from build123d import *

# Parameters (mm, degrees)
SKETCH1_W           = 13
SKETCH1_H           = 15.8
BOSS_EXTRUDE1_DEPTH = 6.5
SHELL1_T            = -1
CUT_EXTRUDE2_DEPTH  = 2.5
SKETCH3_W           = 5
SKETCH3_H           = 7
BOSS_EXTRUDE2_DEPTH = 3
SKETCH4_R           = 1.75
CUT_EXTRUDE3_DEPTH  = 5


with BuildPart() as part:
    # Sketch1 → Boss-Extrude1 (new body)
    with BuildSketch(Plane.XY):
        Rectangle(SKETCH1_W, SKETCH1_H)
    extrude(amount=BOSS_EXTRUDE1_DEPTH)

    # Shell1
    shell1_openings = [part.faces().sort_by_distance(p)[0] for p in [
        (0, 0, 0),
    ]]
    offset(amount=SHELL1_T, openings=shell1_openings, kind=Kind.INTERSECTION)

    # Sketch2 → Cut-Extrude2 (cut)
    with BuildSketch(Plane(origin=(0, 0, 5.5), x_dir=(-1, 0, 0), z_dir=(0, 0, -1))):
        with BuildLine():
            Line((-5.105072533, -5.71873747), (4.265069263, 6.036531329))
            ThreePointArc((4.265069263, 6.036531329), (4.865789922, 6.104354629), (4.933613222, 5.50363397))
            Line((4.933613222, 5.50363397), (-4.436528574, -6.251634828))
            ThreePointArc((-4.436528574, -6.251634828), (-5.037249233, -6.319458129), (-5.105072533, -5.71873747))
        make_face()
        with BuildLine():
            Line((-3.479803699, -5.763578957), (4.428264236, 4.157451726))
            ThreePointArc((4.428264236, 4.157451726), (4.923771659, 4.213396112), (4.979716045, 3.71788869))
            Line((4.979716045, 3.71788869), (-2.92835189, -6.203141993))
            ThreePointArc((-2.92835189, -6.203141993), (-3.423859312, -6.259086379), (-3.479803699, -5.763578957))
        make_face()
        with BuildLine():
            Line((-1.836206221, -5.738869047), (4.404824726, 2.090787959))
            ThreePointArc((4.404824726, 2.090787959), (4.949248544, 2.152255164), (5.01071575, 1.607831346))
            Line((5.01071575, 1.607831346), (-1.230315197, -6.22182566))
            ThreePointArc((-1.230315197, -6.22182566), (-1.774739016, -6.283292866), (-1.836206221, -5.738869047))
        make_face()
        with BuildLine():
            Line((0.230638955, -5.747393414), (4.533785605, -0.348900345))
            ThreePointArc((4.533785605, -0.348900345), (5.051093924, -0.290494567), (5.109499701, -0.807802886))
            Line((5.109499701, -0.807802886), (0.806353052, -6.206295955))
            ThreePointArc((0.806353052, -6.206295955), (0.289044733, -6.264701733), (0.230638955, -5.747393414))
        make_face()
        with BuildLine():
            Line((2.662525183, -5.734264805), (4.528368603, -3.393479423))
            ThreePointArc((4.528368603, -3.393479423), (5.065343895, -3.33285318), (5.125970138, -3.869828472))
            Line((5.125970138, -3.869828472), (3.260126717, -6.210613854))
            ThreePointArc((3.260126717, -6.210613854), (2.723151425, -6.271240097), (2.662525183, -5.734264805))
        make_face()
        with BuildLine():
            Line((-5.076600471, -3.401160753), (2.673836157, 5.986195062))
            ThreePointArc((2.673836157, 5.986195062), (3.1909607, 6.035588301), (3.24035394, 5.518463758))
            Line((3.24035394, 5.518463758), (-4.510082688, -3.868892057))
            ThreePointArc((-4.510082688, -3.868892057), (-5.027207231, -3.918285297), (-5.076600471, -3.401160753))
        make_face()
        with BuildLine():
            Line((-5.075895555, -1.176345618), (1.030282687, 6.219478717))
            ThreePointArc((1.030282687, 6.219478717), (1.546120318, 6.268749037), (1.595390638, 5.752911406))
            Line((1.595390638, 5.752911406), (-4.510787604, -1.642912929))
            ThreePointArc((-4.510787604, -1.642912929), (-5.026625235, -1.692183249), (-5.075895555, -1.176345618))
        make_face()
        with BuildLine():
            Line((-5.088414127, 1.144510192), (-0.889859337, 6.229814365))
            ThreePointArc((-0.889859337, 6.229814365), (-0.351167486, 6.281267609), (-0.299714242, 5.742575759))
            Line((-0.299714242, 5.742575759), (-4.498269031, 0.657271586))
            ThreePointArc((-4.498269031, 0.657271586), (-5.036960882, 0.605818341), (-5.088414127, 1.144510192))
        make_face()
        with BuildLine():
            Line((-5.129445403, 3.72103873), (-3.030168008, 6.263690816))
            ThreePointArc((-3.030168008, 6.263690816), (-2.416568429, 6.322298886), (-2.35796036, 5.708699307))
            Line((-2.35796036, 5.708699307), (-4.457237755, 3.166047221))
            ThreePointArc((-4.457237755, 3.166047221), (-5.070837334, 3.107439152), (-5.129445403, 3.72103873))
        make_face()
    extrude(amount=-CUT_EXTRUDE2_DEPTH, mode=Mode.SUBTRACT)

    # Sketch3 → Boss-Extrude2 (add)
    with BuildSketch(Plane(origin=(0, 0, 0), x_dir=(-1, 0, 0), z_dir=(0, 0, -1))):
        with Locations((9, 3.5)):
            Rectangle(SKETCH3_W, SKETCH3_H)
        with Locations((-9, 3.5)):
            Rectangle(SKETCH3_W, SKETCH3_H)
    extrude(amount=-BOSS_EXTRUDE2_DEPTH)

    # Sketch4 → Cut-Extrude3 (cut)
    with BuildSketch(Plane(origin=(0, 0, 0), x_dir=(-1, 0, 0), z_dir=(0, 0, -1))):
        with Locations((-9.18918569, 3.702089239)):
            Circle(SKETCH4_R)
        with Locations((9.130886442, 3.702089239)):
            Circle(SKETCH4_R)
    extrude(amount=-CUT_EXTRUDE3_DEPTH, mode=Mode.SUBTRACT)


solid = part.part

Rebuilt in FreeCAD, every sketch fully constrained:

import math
import FreeCAD as App
import Part
import Sketcher
Q = App.Units.Quantity


def faces_at(feature, points):
    """Names of the faces that lie closest to the given points."""
    faces = feature.Shape.Faces
    near = lambda p: min(range(len(faces)), key=lambda i: faces[i].distToShape(Part.Vertex(*p))[0])
    return sorted({f"Face{near(p) + 1}" for p in points})

doc = App.newDocument("Part")
body = doc.addObject("PartDesign::Body", "Body")

sketch1 = doc.addObject("Sketcher::SketchObject", "Sketch")
body.addObject(sketch1)
sketch1.AttachmentSupport = (doc.XY_Plane, [""])
sketch1.MapMode = "FlatFace"
sketch1.addGeometry([
    Part.LineSegment(App.Vector(-6, 8, 0), App.Vector(-6, -8, 0)),
    Part.LineSegment(App.Vector(-6, -8, 0), App.Vector(6, -8, 0)),
    Part.LineSegment(App.Vector(6, -8, 0), App.Vector(6, 8, 0)),
    Part.LineSegment(App.Vector(6, 8, 0), App.Vector(-6, 8, 0)),
], False)
sketch1.addConstraint([
    Sketcher.Constraint("Coincident", 0, 2, 1, 1),
    Sketcher.Constraint("Coincident", 1, 2, 2, 1),
    Sketcher.Constraint("Coincident", 2, 2, 3, 1),
    Sketcher.Constraint("Coincident", 3, 2, 0, 1),
    Sketcher.Constraint("Vertical", 0),
    Sketcher.Constraint("Horizontal", 1),
    Sketcher.Constraint("Vertical", 2),
    Sketcher.Constraint("Horizontal", 3),
    Sketcher.Constraint("Symmetric", 0, 2, 2, 2, -1, 1),
    Sketcher.Constraint("DistanceX", 1, 1, 1, 2, Q("13 mm")),
    Sketcher.Constraint("DistanceY", 0, 2, 0, 1, Q("15.8 mm")),
])
pad1 = doc.addObject("PartDesign::Pad", "Pad")
body.addObject(pad1)
pad1.Profile = sketch1
pad1.Length = 6.5
doc.recompute()

thickness = doc.addObject("PartDesign::Thickness", "Thickness")
body.addObject(thickness)
thickness.Base = (pad1, faces_at(pad1, [(0, 0, 0)]))
thickness.Value = 1
thickness.Reversed = True
thickness.Join = "Intersection"

sketch2 = doc.addObject("Sketcher::SketchObject", "Sketch001")
body.addObject(sketch2)
sketch2.AttachmentSupport = (doc.XY_Plane, [""])
sketch2.MapMode = "FlatFace"
sketch2.AttachmentOffset = App.Placement(App.Vector(0, 0, 5.5), App.Rotation())
sketch2.addGeometry([
    Part.LineSegment(App.Vector(-4.265069, 6.036531, 0), App.Vector(5.105073, -5.718737, 0)),
    Part.ArcOfCircle(Part.Circle(App.Vector(4.770801, -5.985186, 0), App.Vector(0, 0, 1), 0.427472), math.radians(-141.4416), math.radians(38.5584)),
    Part.LineSegment(App.Vector(4.436529, -6.251635, 0), App.Vector(-4.933613, 5.503634, 0)),
    Part.ArcOfCircle(Part.Circle(App.Vector(-4.599341, 5.770083, 0), App.Vector(0, 0, 1), 0.427472), math.radians(38.5584), math.radians(218.5584)),
    Part.LineSegment(App.Vector(-4.428264, 4.157452, 0), App.Vector(3.479804, -5.763579, 0)),
    Part.ArcOfCircle(Part.Circle(App.Vector(3.204078, -5.98336, 0), App.Vector(0, 0, 1), 0.352603), math.radians(-141.4416), math.radians(38.5584)),
    Part.LineSegment(App.Vector(2.928352, -6.203142, 0), App.Vector(-4.979716, 3.717889, 0)),
    Part.ArcOfCircle(Part.Circle(App.Vector(-4.70399, 3.93767, 0), App.Vector(0, 0, 1), 0.352603), math.radians(38.5584), math.radians(218.5584)),
    Part.LineSegment(App.Vector(-4.404825, 2.090788, 0), App.Vector(1.836206, -5.738869, 0)),
    Part.ArcOfCircle(Part.Circle(App.Vector(1.533261, -5.980347, 0), App.Vector(0, 0, 1), 0.387412), math.radians(-141.4416), math.radians(38.5584)),
    Part.LineSegment(App.Vector(1.230315, -6.221826, 0), App.Vector(-5.010716, 1.607831, 0)),
    Part.ArcOfCircle(Part.Circle(App.Vector(-4.70777, 1.84931, 0), App.Vector(0, 0, 1), 0.387412), math.radians(38.5584), math.radians(218.5584)),
    Part.LineSegment(App.Vector(-4.533786, -0.3489, 0), App.Vector(-0.230639, -5.747393, 0)),
    Part.ArcOfCircle(Part.Circle(App.Vector(-0.518496, -5.976845, 0), App.Vector(0, 0, 1), 0.368116), math.radians(-141.4416), math.radians(38.5584)),
    Part.LineSegment(App.Vector(-0.806353, -6.206296, 0), App.Vector(-5.1095, -0.807803, 0)),
    Part.ArcOfCircle(Part.Circle(App.Vector(-4.821643, -0.578352, 0), App.Vector(0, 0, 1), 0.368116), math.radians(38.5584), math.radians(218.5584)),
    Part.LineSegment(App.Vector(-4.528369, -3.393479, 0), App.Vector(-2.662525, -5.734265, 0)),
    Part.ArcOfCircle(Part.Circle(App.Vector(-2.961326, -5.972439, 0), App.Vector(0, 0, 1), 0.382111), math.radians(-141.4416), math.radians(38.5584)),
    Part.LineSegment(App.Vector(-3.260127, -6.210614, 0), App.Vector(-5.12597, -3.869828, 0)),
    Part.ArcOfCircle(Part.Circle(App.Vector(-4.827169, -3.631654, 0), App.Vector(0, 0, 1), 0.382111), math.radians(38.5584), math.radians(218.5584)),
    Part.LineSegment(App.Vector(-2.673836, 5.986195, 0), App.Vector(5.0766, -3.401161, 0)),
    Part.ArcOfCircle(Part.Circle(App.Vector(4.793342, -3.635026, 0), App.Vector(0, 0, 1), 0.367326), math.radians(-140.456064), math.radians(39.543936)),
    Part.LineSegment(App.Vector(4.510083, -3.868892, 0), App.Vector(-3.240354, 5.518464, 0)),
    Part.ArcOfCircle(Part.Circle(App.Vector(-2.957095, 5.752329, 0), App.Vector(0, 0, 1), 0.367326), math.radians(39.543936), math.radians(219.543936)),
    Part.LineSegment(App.Vector(-1.030283, 6.219479, 0), App.Vector(5.075896, -1.176346, 0)),
    Part.ArcOfCircle(Part.Circle(App.Vector(4.793342, -1.409629, 0), App.Vector(0, 0, 1), 0.366412), math.radians(-140.456064), math.radians(39.543936)),
    Part.LineSegment(App.Vector(4.510788, -1.642913, 0), App.Vector(-1.595391, 5.752911, 0)),
    Part.ArcOfCircle(Part.Circle(App.Vector(-1.312837, 5.986195, 0), App.Vector(0, 0, 1), 0.366412), math.radians(39.543936), math.radians(219.543936)),
    Part.LineSegment(App.Vector(0.889859, 6.229814, 0), App.Vector(5.088414, 1.14451, 0)),
    Part.ArcOfCircle(Part.Circle(App.Vector(4.793342, 0.900891, 0), App.Vector(0, 0, 1), 0.382646), math.radians(-140.456064), math.radians(39.543936)),
    Part.LineSegment(App.Vector(4.498269, 0.657272, 0), App.Vector(0.299714, 5.742576, 0)),
    Part.ArcOfCircle(Part.Circle(App.Vector(0.594787, 5.986195, 0), App.Vector(0, 0, 1), 0.382646), math.radians(39.543936), math.radians(219.543936)),
    Part.LineSegment(App.Vector(3.030168, 6.263691, 0), App.Vector(5.129445, 3.721039, 0)),
    Part.ArcOfCircle(Part.Circle(App.Vector(4.793342, 3.443543, 0), App.Vector(0, 0, 1), 0.435855), math.radians(-140.456064), math.radians(39.543936)),
    Part.LineSegment(App.Vector(4.457238, 3.166047, 0), App.Vector(2.35796, 5.708699, 0)),
    Part.ArcOfCircle(Part.Circle(App.Vector(2.694064, 5.986195, 0), App.Vector(0, 0, 1), 0.435855), math.radians(39.543936), math.radians(219.543936)),
], False)
sketch2.addConstraint([
    Sketcher.Constraint("Coincident", 0, 2, 1, 2),
    Sketcher.Constraint("Coincident", 1, 1, 2, 1),
    Sketcher.Constraint("Coincident", 2, 2, 3, 2),
    Sketcher.Constraint("Coincident", 3, 1, 0, 1),
    Sketcher.Constraint("Coincident", 4, 2, 5, 2),
    Sketcher.Constraint("Coincident", 5, 1, 6, 1),
    Sketcher.Constraint("Coincident", 6, 2, 7, 2),
    Sketcher.Constraint("Coincident", 7, 1, 4, 1),
    Sketcher.Constraint("Coincident", 8, 2, 9, 2),
    Sketcher.Constraint("Coincident", 9, 1, 10, 1),
    Sketcher.Constraint("Coincident", 10, 2, 11, 2),
    Sketcher.Constraint("Coincident", 11, 1, 8, 1),
    Sketcher.Constraint("Coincident", 12, 2, 13, 2),
    Sketcher.Constraint("Coincident", 13, 1, 14, 1),
    Sketcher.Constraint("Coincident", 14, 2, 15, 2),
    Sketcher.Constraint("Coincident", 15, 1, 12, 1),
    Sketcher.Constraint("Coincident", 16, 2, 17, 2),
    Sketcher.Constraint("Coincident", 17, 1, 18, 1),
    Sketcher.Constraint("Coincident", 18, 2, 19, 2),
    Sketcher.Constraint("Coincident", 19, 1, 16, 1),
    Sketcher.Constraint("Coincident", 20, 2, 21, 2),
    Sketcher.Constraint("Coincident", 21, 1, 22, 1),
    Sketcher.Constraint("Coincident", 22, 2, 23, 2),
    Sketcher.Constraint("Coincident", 23, 1, 20, 1),
    Sketcher.Constraint("Coincident", 24, 2, 25, 2),
    Sketcher.Constraint("Coincident", 25, 1, 26, 1),
    Sketcher.Constraint("Coincident", 26, 2, 27, 2),
    Sketcher.Constraint("Coincident", 27, 1, 24, 1),
    Sketcher.Constraint("Coincident", 28, 2, 29, 2),
    Sketcher.Constraint("Coincident", 29, 1, 30, 1),
    Sketcher.Constraint("Coincident", 30, 2, 31, 2),
    Sketcher.Constraint("Coincident", 31, 1, 28, 1),
    Sketcher.Constraint("Coincident", 32, 2, 33, 2),
    Sketcher.Constraint("Coincident", 33, 1, 34, 1),
    Sketcher.Constraint("Coincident", 34, 2, 35, 2),
    Sketcher.Constraint("Coincident", 35, 1, 32, 1),
    Sketcher.Constraint("Radius", 9, Q("0.387412 mm")),
    Sketcher.Constraint("Radius", 11, Q("0.387412 mm")),
    Sketcher.Constraint("Radius", 17, Q("0.382111 mm")),
    Sketcher.Constraint("Radius", 19, Q("0.382111 mm")),
    Sketcher.Constraint("Radius", 1, Q("0.427472 mm")),
    Sketcher.Constraint("Radius", 3, Q("0.427472 mm")),
    Sketcher.Constraint("Radius", 5, Q("0.352603 mm")),
    Sketcher.Constraint("Radius", 7, Q("0.352603 mm")),
    Sketcher.Constraint("Radius", 13, Q("0.368116 mm")),
    Sketcher.Constraint("Radius", 15, Q("0.368116 mm")),
    Sketcher.Constraint("Radius", 21, Q("0.367326 mm")),
    Sketcher.Constraint("Radius", 23, Q("0.367326 mm")),
    Sketcher.Constraint("Radius", 25, Q("0.366412 mm")),
    Sketcher.Constraint("Radius", 27, Q("0.366412 mm")),
    Sketcher.Constraint("Radius", 29, Q("0.382646 mm")),
    Sketcher.Constraint("Radius", 31, Q("0.382646 mm")),
    Sketcher.Constraint("Radius", 33, Q("0.435855 mm")),
    Sketcher.Constraint("Radius", 35, Q("0.435855 mm")),
    Sketcher.Constraint("DistanceX", 10, 2, 6, 2, Q("0.031 mm")),
    Sketcher.Constraint("DistanceX", 23, 1, 27, 3, Q("1.360999 mm")),
    Sketcher.Constraint("DistanceX", -1, 1, 1, 3, Q("4.770801 mm")),
    Sketcher.Constraint("DistanceX", 14, 2, -1, 1, Q("5.1095 mm")),
    Sketcher.Constraint("DistanceY", 15, 1, -1, 1, Q("0.3489 mm")),
    Sketcher.Constraint("DistanceX", -1, 1, 20, 2, Q("5.0766 mm")),
    Sketcher.Constraint("DistanceY", -1, 1, 34, 2, Q("5.708699 mm")),
    Sketcher.Constraint("DistanceX", 3, 3, 9, 3, Q("6.132602 mm")),
    Sketcher.Constraint("DistanceX", 15, 3, 3, 3, Q("0.222301 mm")),
    Sketcher.Constraint("DistanceX", 19, 3, 11, 3, Q("0.119399 mm")),
    Sketcher.Constraint("DistanceX", 27, 3, 35, 3, Q("4.006901 mm")),
    Sketcher.Constraint("DistanceY", 23, 3, 3, 1, Q("0.284202 mm")),
    Sketcher.Constraint("DistanceY", 11, 1, 6, 2, Q("1.627101 mm")),
    Sketcher.Constraint("DistanceX", 12, 2, 9, 3, Q("1.7639 mm")),
    Sketcher.Constraint("DistanceX", 17, 3, 16, 2, Q("0.298801 mm")),
    Sketcher.Constraint("DistanceX", 17, 1, 17, 3, Q("0.298801 mm")),
    Sketcher.Constraint("DistanceX", 18, 2, 19, 3, Q("0.298801 mm")),
    Sketcher.Constraint("DistanceX", 19, 3, 19, 1, Q("0.298801 mm")),
    Sketcher.Constraint("DistanceY", 25, 3, 29, 1, Q("2.066901 mm")),
    Sketcher.Constraint("DistanceX", 31, 1, 34, 2, Q("1.468101 mm")),
    Sketcher.Constraint("Distance", 8, Q("10.012692 mm")),
    Sketcher.Constraint("Distance", 10, Q("10.012692 mm")),
    Sketcher.Constraint("Distance", 12, Q("6.90368 mm")),
    Sketcher.Constraint("Distance", 14, Q("6.90368 mm")),
    Sketcher.Constraint("Distance", 24, Q("9.59081 mm")),
    Sketcher.Constraint("Distance", 26, Q("9.59081 mm")),
    Sketcher.Constraint("Distance", 32, Q("3.297278 mm")),
    Sketcher.Constraint("Distance", 34, Q("3.297278 mm")),
    Sketcher.Constraint("DistanceX", 3, 3, -1, 1, Q("4.599341 mm")),
    Sketcher.Constraint("DistanceY", 5, 3, -1, 1, Q("5.98336 mm")),
    Sketcher.Constraint("DistanceX", 7, 3, -1, 1, Q("4.70399 mm")),
    Sketcher.Constraint("DistanceY", -1, 1, 7, 3, Q("3.93767 mm")),
    Sketcher.Constraint("DistanceX", 11, 3, -1, 1, Q("4.70777 mm")),
    Sketcher.Constraint("DistanceY", -1, 1, 11, 3, Q("1.84931 mm")),
    Sketcher.Constraint("DistanceY", 15, 3, -1, 1, Q("0.578352 mm")),
    Sketcher.Constraint("DistanceY", 17, 3, -1, 1, Q("5.972439 mm")),
    Sketcher.Constraint("DistanceX", -1, 1, 21, 3, Q("4.793342 mm")),
    Sketcher.Constraint("DistanceY", -1, 1, 23, 3, Q("5.752329 mm")),
    Sketcher.Constraint("DistanceX", -1, 1, 25, 3, Q("4.793342 mm")),
    Sketcher.Constraint("DistanceY", 25, 3, -1, 1, Q("1.409629 mm")),
    Sketcher.Constraint("DistanceX", -1, 1, 29, 3, Q("4.793342 mm")),
    Sketcher.Constraint("DistanceY", -1, 1, 29, 3, Q("0.900891 mm")),
    Sketcher.Constraint("DistanceX", -1, 1, 33, 3, Q("4.793342 mm")),
    Sketcher.Constraint("DistanceX", -1, 1, 1, 1, Q("4.436529 mm")),
    Sketcher.Constraint("DistanceX", 3, 1, -1, 1, Q("4.265069 mm")),
    Sketcher.Constraint("DistanceY", 4, 2, -1, 1, Q("5.763579 mm")),
    Sketcher.Constraint("DistanceX", -1, 1, 5, 1, Q("2.928352 mm")),
    Sketcher.Constraint("DistanceY", 5, 1, -1, 1, Q("6.203142 mm")),
    Sketcher.Constraint("DistanceY", -1, 1, 6, 2, Q("3.717889 mm")),
    Sketcher.Constraint("DistanceY", -1, 1, 7, 1, Q("4.157452 mm")),
    Sketcher.Constraint("DistanceY", 8, 2, -1, 1, Q("5.738869 mm")),
    Sketcher.Constraint("DistanceY", 18, 2, -1, 1, Q("3.869828 mm")),
    Sketcher.Constraint("DistanceY", 20, 2, -1, 1, Q("3.401161 mm")),
    Sketcher.Constraint("DistanceX", 26, 2, -1, 1, Q("1.595391 mm")),
    Sketcher.Constraint("DistanceY", -1, 1, 26, 2, Q("5.752911 mm")),
    Sketcher.Constraint("DistanceY", -1, 1, 27, 1, Q("6.219479 mm")),
    Sketcher.Constraint("DistanceY", -1, 1, 28, 2, Q("1.14451 mm")),
    Sketcher.Constraint("DistanceX", -1, 1, 31, 1, Q("0.889859 mm")),
    Sketcher.Constraint("DistanceY", -1, 1, 32, 2, Q("3.721039 mm")),
    Sketcher.Constraint("DistanceX", -1, 1, 35, 1, Q("3.030168 mm")),
    Sketcher.Constraint("DistanceY", 1, 3, 3, 3, Q("11.755269 mm")),
    Sketcher.Constraint("DistanceY", 1, 3, 13, 3, Q("0.008341 mm")),
    Sketcher.Constraint("DistanceX", 17, 3, 13, 3, Q("2.44283 mm")),
    Sketcher.Constraint("DistanceX", 23, 3, 27, 3, Q("1.644258 mm")),
    Sketcher.Constraint("DistanceX", 23, 3, 31, 3, Q("3.551882 mm")),
    Sketcher.Constraint("DistanceX", 3, 3, 31, 3, Q("5.194128 mm")),
    Sketcher.Constraint("DistanceX", 1, 3, 0, 2, Q("0.334272 mm")),
    Sketcher.Constraint("DistanceX", 2, 2, 3, 3, Q("0.334272 mm")),
    Sketcher.Constraint("DistanceX", 21, 1, 21, 3, Q("0.283259 mm")),
    Sketcher.Constraint("DistanceX", 22, 2, 23, 3, Q("0.283259 mm")),
    Sketcher.Constraint("DistanceY", 30, 2, 31, 3, Q("0.243619 mm")),
    Sketcher.Constraint("DistanceY", 30, 2, 27, 3, Q("0.243619 mm")),
])
pocket1 = doc.addObject("PartDesign::Pocket", "Pocket")
body.addObject(pocket1)
pocket1.Profile = sketch2
pocket1.Length = 2.5
pocket1.Reversed = True

sketch3 = doc.addObject("Sketcher::SketchObject", "Sketch002")
body.addObject(sketch3)
sketch3.AttachmentSupport = (doc.XY_Plane, [""])
sketch3.MapMode = "FlatFace"
sketch3.addGeometry([
    Part.LineSegment(App.Vector(-6, 7, 0), App.Vector(-6, 0, 0)),
    Part.LineSegment(App.Vector(-6, 0, 0), App.Vector(-12, 0, 0)),
    Part.LineSegment(App.Vector(-12, 0, 0), App.Vector(-12, 7, 0)),
    Part.LineSegment(App.Vector(-12, 7, 0), App.Vector(-6, 7, 0)),
    Part.LineSegment(App.Vector(12, 7, 0), App.Vector(12, 0, 0)),
    Part.LineSegment(App.Vector(12, 0, 0), App.Vector(6, 0, 0)),
    Part.LineSegment(App.Vector(6, 0, 0), App.Vector(6, 7, 0)),
    Part.LineSegment(App.Vector(6, 7, 0), App.Vector(12, 7, 0)),
], False)
sketch3.addConstraint([
    Sketcher.Constraint("Coincident", 0, 2, 1, 1),
    Sketcher.Constraint("Coincident", 1, 2, 2, 1),
    Sketcher.Constraint("Coincident", 2, 2, 3, 1),
    Sketcher.Constraint("Coincident", 3, 2, 0, 1),
    Sketcher.Constraint("Coincident", 4, 2, 5, 1),
    Sketcher.Constraint("Coincident", 5, 2, 6, 1),
    Sketcher.Constraint("Coincident", 6, 2, 7, 1),
    Sketcher.Constraint("Coincident", 7, 2, 4, 1),
    Sketcher.Constraint("Vertical", 0),
    Sketcher.Constraint("Horizontal", 1),
    Sketcher.Constraint("Vertical", 2),
    Sketcher.Constraint("Horizontal", 3),
    Sketcher.Constraint("Vertical", 4),
    Sketcher.Constraint("Horizontal", 5),
    Sketcher.Constraint("Vertical", 6),
    Sketcher.Constraint("Horizontal", 7),
    Sketcher.Constraint("Symmetric", 1, 2, 4, 2, -1, 1),
    Sketcher.Constraint("Symmetric", 0, 2, 5, 2, -2),
    Sketcher.Constraint("Horizontal", 3, 2, 6, 2),
    Sketcher.Constraint("DistanceX", 1, 2, 1, 1, Q("5 mm")),
    Sketcher.Constraint("DistanceY", 0, 2, 0, 1, Q("7 mm")),
    Sketcher.Constraint("DistanceX", 0, 2, 4, 2, Q("18 mm")),
])
pad2 = doc.addObject("PartDesign::Pad", "Pad001")
body.addObject(pad2)
pad2.Profile = sketch3
pad2.Length = 3

sketch4 = doc.addObject("Sketcher::SketchObject", "Sketch003")
body.addObject(sketch4)
sketch4.AttachmentSupport = (doc.XY_Plane, [""])
sketch4.MapMode = "FlatFace"
sketch4.addGeometry([
    Part.Circle(App.Vector(9.2, 3.7, 0), App.Vector(0, 0, 1), 1.8),
    Part.Circle(App.Vector(-9.1, 3.7, 0), App.Vector(0, 0, 1), 1.8),
], False)
sketch4.addConstraint([
    Sketcher.Constraint("Equal", 0, 1),
    Sketcher.Constraint("Horizontal", 0, 3, 1, 3),
    Sketcher.Constraint("Diameter", 0, Q("3.5 mm")),
    Sketcher.Constraint("DistanceY", -1, 1, 0, 3, Q("3.702089 mm")),
    Sketcher.Constraint("DistanceX", -1, 1, 0, 3, Q("9.189186 mm")),
    Sketcher.Constraint("DistanceX", 1, 3, -1, 1, Q("9.130886 mm")),
])
pocket2 = doc.addObject("PartDesign::Pocket", "Pocket001")
body.addObject(pocket2)
pocket2.Profile = sketch4
pocket2.Length = 5
pocket2.Reversed = True

doc.recompute()
